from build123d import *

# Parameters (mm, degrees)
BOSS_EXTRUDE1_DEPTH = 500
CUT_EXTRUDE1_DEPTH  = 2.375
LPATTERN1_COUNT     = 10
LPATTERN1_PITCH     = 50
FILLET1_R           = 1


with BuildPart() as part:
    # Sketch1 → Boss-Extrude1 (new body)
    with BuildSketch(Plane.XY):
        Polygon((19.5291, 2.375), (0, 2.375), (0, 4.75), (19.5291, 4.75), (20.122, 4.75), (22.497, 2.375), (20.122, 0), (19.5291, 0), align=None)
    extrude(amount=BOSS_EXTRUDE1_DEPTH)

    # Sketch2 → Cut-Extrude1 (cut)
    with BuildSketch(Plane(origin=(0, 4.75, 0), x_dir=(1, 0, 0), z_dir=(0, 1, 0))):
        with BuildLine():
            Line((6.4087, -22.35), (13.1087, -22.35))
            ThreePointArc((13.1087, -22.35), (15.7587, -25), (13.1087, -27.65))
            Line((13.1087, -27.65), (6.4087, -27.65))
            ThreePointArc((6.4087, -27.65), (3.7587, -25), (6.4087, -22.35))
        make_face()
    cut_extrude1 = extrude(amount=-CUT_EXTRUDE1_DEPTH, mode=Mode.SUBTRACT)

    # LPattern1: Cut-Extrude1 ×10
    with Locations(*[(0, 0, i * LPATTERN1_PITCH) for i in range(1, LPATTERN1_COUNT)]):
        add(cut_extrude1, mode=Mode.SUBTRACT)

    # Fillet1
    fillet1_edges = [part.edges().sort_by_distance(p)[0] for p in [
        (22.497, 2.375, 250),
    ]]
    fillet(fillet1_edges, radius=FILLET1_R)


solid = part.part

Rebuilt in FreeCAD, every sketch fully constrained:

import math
import FreeCAD as App
import Part
import Sketcher


def edges_at(feature, points):
    """Names of the edges that pass closest to the given points."""
    edges = feature.Shape.Edges
    near = lambda p: min(range(len(edges)), key=lambda i: edges[i].distToShape(Part.Vertex(*p))[0])
    return sorted({f"Edge{near(p) + 1}" for p in points})

doc = App.newDocument("Part")
body = doc.addObject("PartDesign::Body", "Body")

# Sketch on XY plane
sketch1 = body.newObject("Sketcher::SketchObject", "Sketch")
sketch1.AttachmentSupport = (doc.getObject("XY_Plane"), [""])
sketch1.MapMode = "FlatFace"
sketch1.addGeometry(Part.LineSegment(App.Vector(0, 2.4, 0), App.Vector(19.5, 2.4, 0)), False)
sketch1.addGeometry(Part.LineSegment(App.Vector(19.5, 2.4, 0), App.Vector(19.5, 0, 0)), False)
sketch1.addGeometry(Part.LineSegment(App.Vector(19.5, 0, 0), App.Vector(20.1, 0, 0)), False)
sketch1.addGeometry(Part.LineSegment(App.Vector(20.1, 0, 0), App.Vector(22.5, 2.4, 0)), False)
sketch1.addGeometry(Part.LineSegment(App.Vector(22.5, 2.4, 0), App.Vector(20.1, 4.8, 0)), False)
sketch1.addGeometry(Part.LineSegment(App.Vector(20.1, 4.8, 0), App.Vector(0, 4.8, 0)), False)
sketch1.addGeometry(Part.LineSegment(App.Vector(0, 4.8, 0), App.Vector(0, 2.4, 0)), False)
sketch1.addConstraint(Sketcher.Constraint("Coincident", 0, 2, 1, 1))
sketch1.addConstraint(Sketcher.Constraint("Coincident", 1, 2, 2, 1))
sketch1.addConstraint(Sketcher.Constraint("Coincident", 2, 2, 3, 1))
sketch1.addConstraint(Sketcher.Constraint("Coincident", 3, 2, 4, 1))
sketch1.addConstraint(Sketcher.Constraint("Coincident", 4, 2, 5, 1))
sketch1.addConstraint(Sketcher.Constraint("Coincident", 5, 2, 6, 1))
sketch1.addConstraint(Sketcher.Constraint("Coincident", 6, 2, 0, 1))
sketch1.addConstraint(Sketcher.Constraint("Horizontal", 0))
sketch1.addConstraint(Sketcher.Constraint("Vertical", 1))
sketch1.addConstraint(Sketcher.Constraint("Horizontal", 2))
sketch1.addConstraint(Sketcher.Constraint("Horizontal", 5))
sketch1.addConstraint(Sketcher.Constraint("Vertical", 6))
sketch1.addConstraint(Sketcher.Constraint("PointOnObject", 1, 2, -1))
sketch1.addConstraint(Sketcher.Constraint("PointOnObject", 5, 2, -2))
sketch1.addConstraint(Sketcher.Constraint("Perpendicular", 3, 4))
sketch1.addConstraint(Sketcher.Constraint("Horizontal", 0, 2, 3, 2))
sketch1.addConstraint(Sketcher.Constraint("Vertical", 2, 2, 4, 2))
sketch1.addConstraint(Sketcher.Constraint("Equal", 1, 6))
sketch1.addConstraint(Sketcher.Constraint("DistanceX", 5, 2, 5, 1, 20.122))
sketch1.addConstraint(Sketcher.Constraint("DistanceY", 1, 2, 1, 1, 2.375))
sketch1.addConstraint(Sketcher.Constraint("DistanceX", 0, 1, 0, 2, 19.5291))
pad1 = body.newObject("PartDesign::Pad", "Pad")
pad1.Profile = sketch1
pad1.Length = 500

# Sketch on XZ plane
sketch2 = body.newObject("Sketcher::SketchObject", "Sketch001")
sketch2.AttachmentSupport = (doc.getObject("XZ_Plane"), [""])
sketch2.MapMode = "FlatFace"
sketch2.AttachmentOffset = App.Placement(App.Vector(0, 0, -4.75), App.Rotation())
sketch2.addGeometry(Part.LineSegment(App.Vector(13.1, 22.4, 0), App.Vector(6.4, 22.4, 0)), False)
sketch2.addGeometry(Part.ArcOfCircle(Part.Circle(App.Vector(6.4, 25, 0), App.Vector(0, 0, 1), 2.6), math.radians(90), math.radians(270)), False)
sketch2.addGeometry(Part.LineSegment(App.Vector(6.4, 27.6, 0), App.Vector(13.1, 27.6, 0)), False)
sketch2.addGeometry(Part.ArcOfCircle(Part.Circle(App.Vector(13.1, 25, 0), App.Vector(0, 0, 1), 2.6), math.radians(-90), math.radians(90)), False)
sketch2.addConstraint(Sketcher.Constraint("Tangent", 0, 2, 1, 2))
sketch2.addConstraint(Sketcher.Constraint("Tangent", 1, 1, 2, 1))
sketch2.addConstraint(Sketcher.Constraint("Tangent", 2, 2, 3, 2))
sketch2.addConstraint(Sketcher.Constraint("Tangent", 3, 1, 0, 1))
sketch2.addConstraint(Sketcher.Constraint("Horizontal", 0))
sketch2.addConstraint(Sketcher.Constraint("Horizontal", 2))
sketch2.addConstraint(Sketcher.Constraint("Radius", 1, 2.65))
sketch2.addConstraint(Sketcher.Constraint("DistanceX", 0, 2, 0, 1, 6.7))
sketch2.addConstraint(Sketcher.Constraint("DistanceY", -1, 1, 1, 3, 25.0))
sketch2.addConstraint(Sketcher.Constraint("DistanceX", -1, 1, 1, 3, 6.4087))
pocket1 = body.newObject("PartDesign::Pocket", "Pocket")
pocket1.Profile = sketch2
pocket1.Length = 2.375
pocket1.Reversed = True
doc.recompute()

linearpattern = body.newObject("PartDesign::LinearPattern", "LinearPattern")
linearpattern.Originals = [pocket1]
linearpattern.Direction = (doc.getObject("Z_Axis"), [""])
linearpattern.Mode = "offset"
linearpattern.Offset = 50
linearpattern.Occurrences = 10
body.Tip = linearpattern
doc.recompute()

fillet = body.newObject("PartDesign::Fillet", "Fillet")
fillet.Base = (linearpattern, edges_at(linearpattern, [(22.497, 2.375, 250)]))
fillet.Radius = 1

doc.recompute()
